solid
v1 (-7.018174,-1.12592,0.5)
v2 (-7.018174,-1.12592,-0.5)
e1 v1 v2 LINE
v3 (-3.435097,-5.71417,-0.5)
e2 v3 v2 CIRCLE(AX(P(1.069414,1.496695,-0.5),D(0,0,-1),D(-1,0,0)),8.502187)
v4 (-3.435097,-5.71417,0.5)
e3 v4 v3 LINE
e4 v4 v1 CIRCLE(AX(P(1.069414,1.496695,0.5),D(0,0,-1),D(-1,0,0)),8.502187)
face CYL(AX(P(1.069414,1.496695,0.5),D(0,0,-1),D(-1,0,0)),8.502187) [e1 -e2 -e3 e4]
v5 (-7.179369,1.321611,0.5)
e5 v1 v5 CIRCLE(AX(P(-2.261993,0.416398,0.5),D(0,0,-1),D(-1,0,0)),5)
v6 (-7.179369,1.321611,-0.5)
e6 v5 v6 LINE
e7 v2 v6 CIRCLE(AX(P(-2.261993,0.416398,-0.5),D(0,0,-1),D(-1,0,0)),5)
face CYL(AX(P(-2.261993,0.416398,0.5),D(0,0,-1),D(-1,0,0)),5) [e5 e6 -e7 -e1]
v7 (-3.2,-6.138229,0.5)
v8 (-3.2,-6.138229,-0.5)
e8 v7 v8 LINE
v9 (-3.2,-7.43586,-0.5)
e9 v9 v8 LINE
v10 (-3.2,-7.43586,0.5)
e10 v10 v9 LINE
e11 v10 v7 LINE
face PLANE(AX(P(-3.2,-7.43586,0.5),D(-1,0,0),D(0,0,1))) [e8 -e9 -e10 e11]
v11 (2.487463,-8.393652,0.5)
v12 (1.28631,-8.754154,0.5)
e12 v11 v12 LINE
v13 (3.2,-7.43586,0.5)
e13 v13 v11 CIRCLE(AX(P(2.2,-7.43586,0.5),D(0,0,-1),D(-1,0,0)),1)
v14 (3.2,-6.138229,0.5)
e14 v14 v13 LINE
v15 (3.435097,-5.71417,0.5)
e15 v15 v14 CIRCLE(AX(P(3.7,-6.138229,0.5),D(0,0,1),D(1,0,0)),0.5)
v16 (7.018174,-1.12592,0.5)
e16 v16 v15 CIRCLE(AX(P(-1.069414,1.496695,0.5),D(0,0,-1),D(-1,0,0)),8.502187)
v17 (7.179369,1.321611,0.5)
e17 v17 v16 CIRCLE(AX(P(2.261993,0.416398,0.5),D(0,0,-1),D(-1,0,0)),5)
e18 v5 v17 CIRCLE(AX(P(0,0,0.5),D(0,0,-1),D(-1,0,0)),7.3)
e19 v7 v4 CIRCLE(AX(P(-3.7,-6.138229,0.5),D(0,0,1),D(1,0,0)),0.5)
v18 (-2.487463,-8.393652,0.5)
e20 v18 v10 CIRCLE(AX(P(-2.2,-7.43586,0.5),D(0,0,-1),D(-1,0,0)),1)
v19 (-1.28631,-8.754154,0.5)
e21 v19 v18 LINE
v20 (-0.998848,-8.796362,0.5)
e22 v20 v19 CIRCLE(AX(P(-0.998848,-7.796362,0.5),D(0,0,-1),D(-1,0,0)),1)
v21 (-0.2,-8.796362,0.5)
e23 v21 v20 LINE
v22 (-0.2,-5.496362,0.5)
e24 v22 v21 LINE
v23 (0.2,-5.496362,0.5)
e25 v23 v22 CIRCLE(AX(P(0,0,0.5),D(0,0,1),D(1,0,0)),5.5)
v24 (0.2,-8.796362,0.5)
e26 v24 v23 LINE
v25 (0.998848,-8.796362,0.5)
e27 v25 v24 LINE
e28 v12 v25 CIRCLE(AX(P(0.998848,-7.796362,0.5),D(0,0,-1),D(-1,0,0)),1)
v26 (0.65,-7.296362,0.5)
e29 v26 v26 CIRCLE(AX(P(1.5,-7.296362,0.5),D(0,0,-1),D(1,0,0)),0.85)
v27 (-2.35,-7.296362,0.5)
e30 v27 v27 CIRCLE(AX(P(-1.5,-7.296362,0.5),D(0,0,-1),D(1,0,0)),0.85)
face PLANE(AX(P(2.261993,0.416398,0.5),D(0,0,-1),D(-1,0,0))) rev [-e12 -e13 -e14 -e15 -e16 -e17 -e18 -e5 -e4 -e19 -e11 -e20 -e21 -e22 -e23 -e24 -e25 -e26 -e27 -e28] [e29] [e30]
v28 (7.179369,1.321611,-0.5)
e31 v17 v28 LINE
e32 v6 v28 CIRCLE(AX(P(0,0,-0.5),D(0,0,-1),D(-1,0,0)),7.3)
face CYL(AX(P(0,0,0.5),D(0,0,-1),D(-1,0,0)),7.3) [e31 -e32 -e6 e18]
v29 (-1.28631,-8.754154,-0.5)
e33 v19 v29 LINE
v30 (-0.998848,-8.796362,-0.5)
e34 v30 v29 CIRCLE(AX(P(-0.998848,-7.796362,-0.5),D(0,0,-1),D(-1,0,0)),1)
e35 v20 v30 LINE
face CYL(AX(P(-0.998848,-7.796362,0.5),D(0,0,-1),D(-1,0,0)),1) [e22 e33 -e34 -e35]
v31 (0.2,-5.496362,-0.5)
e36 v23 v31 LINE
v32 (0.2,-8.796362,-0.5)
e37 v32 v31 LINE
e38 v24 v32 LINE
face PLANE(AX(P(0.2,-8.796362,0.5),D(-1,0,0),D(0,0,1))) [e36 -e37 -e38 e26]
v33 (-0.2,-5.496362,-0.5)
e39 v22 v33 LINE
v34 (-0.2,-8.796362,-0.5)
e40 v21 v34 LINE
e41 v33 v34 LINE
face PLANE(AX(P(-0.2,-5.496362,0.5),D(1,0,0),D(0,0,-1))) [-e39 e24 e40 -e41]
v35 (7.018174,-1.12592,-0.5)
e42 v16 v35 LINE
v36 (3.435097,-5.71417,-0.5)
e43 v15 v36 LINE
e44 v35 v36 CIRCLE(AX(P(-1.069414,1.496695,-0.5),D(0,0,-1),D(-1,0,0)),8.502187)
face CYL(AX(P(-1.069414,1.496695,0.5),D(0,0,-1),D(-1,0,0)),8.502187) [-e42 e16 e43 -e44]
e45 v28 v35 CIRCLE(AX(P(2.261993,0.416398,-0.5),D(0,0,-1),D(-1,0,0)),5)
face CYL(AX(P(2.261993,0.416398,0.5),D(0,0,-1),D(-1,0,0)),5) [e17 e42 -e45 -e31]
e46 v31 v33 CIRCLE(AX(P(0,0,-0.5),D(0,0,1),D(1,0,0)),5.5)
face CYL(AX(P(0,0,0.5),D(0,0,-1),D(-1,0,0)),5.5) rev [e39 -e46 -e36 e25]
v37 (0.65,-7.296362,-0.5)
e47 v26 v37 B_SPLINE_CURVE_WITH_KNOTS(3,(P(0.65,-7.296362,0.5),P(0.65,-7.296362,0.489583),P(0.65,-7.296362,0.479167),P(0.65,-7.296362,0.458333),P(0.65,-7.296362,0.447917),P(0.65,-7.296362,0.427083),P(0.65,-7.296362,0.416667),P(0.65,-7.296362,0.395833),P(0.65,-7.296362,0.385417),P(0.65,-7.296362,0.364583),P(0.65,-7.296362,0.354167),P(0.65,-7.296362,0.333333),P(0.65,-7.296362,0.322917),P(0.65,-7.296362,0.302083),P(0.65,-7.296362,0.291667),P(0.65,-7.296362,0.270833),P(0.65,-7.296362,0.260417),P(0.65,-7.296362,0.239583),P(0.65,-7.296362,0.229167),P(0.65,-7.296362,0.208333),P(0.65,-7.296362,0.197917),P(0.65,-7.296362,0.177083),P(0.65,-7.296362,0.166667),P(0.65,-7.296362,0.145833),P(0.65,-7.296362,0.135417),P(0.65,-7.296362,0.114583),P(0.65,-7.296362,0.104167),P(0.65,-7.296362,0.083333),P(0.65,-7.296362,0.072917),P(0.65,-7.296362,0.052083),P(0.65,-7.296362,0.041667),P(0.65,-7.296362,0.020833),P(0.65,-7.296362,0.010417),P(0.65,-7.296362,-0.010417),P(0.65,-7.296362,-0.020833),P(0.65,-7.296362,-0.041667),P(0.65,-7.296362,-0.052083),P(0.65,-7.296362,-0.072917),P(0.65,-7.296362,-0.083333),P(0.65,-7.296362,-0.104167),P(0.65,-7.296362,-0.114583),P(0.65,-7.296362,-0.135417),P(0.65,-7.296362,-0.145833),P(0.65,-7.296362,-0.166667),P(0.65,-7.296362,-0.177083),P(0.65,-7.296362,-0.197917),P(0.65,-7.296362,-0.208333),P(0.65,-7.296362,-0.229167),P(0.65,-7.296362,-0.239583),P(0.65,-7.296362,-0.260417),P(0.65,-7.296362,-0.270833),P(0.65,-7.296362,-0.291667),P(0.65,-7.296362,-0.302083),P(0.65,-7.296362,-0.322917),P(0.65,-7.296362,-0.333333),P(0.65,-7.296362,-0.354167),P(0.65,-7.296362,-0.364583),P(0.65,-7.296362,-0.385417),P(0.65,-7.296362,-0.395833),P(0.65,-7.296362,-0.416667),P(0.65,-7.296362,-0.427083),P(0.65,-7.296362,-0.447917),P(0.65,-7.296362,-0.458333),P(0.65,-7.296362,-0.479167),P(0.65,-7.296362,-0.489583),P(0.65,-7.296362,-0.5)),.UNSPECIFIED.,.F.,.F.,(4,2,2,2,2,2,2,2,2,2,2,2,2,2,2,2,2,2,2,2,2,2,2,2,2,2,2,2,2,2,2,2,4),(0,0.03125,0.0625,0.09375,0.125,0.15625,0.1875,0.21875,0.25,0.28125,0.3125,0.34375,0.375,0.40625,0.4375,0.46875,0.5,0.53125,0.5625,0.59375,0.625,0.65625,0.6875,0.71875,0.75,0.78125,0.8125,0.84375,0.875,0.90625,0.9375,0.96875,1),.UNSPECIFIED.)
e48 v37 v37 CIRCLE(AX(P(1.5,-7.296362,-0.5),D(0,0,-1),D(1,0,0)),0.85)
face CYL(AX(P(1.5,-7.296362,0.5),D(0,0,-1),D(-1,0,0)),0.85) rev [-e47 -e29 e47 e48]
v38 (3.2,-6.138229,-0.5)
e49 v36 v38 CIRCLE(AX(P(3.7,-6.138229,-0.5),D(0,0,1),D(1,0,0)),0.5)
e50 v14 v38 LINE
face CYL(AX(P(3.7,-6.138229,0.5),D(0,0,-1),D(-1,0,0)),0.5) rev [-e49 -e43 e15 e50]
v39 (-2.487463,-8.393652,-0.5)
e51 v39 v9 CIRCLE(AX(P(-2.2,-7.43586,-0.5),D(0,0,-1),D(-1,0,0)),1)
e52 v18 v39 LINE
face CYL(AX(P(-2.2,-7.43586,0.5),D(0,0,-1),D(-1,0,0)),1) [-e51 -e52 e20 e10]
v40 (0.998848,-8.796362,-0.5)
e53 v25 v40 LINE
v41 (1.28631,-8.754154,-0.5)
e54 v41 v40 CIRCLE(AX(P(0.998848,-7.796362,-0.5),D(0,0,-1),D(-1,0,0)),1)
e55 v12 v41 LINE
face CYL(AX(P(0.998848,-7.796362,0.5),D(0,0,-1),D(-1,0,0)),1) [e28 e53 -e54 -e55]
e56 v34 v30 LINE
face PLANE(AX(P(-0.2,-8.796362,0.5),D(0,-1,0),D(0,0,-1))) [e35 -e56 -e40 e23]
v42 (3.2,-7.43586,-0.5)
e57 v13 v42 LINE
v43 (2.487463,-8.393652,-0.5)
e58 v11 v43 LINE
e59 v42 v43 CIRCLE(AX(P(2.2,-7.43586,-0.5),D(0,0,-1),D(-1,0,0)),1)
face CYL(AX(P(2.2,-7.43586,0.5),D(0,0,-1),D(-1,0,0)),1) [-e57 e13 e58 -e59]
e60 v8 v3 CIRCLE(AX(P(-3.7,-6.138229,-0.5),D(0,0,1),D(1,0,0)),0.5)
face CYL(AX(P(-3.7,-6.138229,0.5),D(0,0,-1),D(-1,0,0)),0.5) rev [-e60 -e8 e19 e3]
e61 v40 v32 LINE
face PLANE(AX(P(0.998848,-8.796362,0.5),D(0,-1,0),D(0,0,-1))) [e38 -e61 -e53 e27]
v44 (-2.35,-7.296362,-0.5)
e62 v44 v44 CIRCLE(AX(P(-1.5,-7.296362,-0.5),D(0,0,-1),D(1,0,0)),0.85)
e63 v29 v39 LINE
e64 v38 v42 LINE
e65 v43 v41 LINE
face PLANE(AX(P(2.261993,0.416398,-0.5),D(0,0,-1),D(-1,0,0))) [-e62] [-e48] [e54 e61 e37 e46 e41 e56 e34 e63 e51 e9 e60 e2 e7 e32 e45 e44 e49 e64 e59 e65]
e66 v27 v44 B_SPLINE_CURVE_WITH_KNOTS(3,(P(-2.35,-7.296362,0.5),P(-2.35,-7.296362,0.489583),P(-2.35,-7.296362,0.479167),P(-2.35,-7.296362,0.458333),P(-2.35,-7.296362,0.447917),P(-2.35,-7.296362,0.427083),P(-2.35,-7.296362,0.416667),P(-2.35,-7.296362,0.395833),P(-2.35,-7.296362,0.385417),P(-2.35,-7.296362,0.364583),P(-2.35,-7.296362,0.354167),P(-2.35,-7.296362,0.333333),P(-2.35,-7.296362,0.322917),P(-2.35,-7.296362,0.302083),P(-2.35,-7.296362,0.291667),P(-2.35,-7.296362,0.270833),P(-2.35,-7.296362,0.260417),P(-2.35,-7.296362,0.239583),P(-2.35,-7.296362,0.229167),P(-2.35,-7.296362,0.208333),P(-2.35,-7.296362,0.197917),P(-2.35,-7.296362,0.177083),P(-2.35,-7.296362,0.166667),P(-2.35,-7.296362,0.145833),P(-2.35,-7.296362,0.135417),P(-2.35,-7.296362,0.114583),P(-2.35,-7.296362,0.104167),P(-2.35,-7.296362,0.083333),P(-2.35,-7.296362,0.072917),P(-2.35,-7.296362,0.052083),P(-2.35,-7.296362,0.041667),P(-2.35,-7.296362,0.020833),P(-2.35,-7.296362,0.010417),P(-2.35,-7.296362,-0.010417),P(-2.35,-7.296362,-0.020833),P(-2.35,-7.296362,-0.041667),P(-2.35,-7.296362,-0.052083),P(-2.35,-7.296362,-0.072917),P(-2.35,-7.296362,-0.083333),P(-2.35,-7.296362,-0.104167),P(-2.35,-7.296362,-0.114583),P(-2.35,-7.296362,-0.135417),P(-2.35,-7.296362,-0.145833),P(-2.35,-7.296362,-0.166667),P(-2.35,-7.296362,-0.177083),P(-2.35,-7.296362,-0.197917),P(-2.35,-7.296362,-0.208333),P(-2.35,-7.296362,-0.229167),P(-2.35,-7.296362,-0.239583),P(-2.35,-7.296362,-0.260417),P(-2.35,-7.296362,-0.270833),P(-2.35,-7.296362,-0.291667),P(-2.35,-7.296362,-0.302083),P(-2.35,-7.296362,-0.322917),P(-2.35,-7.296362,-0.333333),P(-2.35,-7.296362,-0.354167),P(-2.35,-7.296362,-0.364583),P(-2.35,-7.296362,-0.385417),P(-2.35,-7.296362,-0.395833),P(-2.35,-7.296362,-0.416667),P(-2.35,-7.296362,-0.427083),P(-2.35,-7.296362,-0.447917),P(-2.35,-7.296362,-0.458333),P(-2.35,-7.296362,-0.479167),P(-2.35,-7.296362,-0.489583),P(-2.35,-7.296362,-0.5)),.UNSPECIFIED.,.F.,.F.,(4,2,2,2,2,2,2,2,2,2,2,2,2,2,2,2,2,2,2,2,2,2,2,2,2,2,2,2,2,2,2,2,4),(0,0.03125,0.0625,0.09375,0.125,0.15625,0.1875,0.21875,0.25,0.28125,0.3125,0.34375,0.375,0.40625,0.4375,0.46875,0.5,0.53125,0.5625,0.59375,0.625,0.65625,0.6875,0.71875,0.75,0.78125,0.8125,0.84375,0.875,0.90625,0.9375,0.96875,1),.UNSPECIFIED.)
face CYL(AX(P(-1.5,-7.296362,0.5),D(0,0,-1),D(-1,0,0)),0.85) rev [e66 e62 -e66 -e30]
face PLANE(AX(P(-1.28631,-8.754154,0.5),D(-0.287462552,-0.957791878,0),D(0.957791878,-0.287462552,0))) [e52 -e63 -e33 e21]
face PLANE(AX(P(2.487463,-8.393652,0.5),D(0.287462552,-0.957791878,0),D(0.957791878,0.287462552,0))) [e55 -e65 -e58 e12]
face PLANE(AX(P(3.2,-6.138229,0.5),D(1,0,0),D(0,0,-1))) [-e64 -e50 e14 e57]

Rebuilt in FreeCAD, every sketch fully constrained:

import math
import FreeCAD as App
import Part
import Sketcher
from FreeCAD import Vector

doc = App.newDocument("Part")
params = doc.addObject("Spreadsheet::Sheet", "Params")
for row, (alias, value) in enumerate([
    ("sketch1_radius", "1 mm"),
    ("sketch1_radius2", "1 mm"),
    ("sketch1_radius3", "1 mm"),
    ("sketch1_radius4", "1 mm"),
    ("sketch1_radius5", "5 mm"),
    ("pad1_length", "1 mm"),
], start=1):
    params.set(f"A{row}", alias)
    params.set(f"B{row}", "=" + value)
    params.setAlias(f"B{row}", alias)

body = doc.addObject("PartDesign::Body", "Body")

# Sketch on XY plane
sketch1 = body.newObject("Sketcher::SketchObject", "Sketch")
sketch1.AttachmentSupport = (doc.getObject("XY_Plane"), [""])
sketch1.MapMode = "FlatFace"
sketch1.AttachmentOffset = App.Placement(Vector(0, 0, -0.5), App.Rotation())
sketch1.addGeometry([
    Part.LineSegment(Vector(3.2, -6.138229, 0), Vector(3.2, -7.43586, 0)),  # 0
    Part.ArcOfCircle(Part.Circle(Vector(2.2, -7.43586, 0), Vector(0, 0, 1), 1), math.radians(-73.293896), math.radians(0)),  # 1
    Part.LineSegment(Vector(2.487463, -8.393652, 0), Vector(1.28631, -8.754154, 0)),  # 2
    Part.ArcOfCircle(Part.Circle(Vector(0.998848, -7.796362, 0), Vector(0, 0, 1), 1), math.radians(-90), math.radians(-73.293896)),  # 3
    Part.LineSegment(Vector(0.998848, -8.796362, 0), Vector(0.2, -8.796362, 0)),  # 4
    Part.LineSegment(Vector(0.2, -8.796362, 0), Vector(0.2, -5.496362, 0)),  # 5
    Part.ArcOfCircle(Part.Circle(Vector(0, 0, 0), Vector(0, 0, 1), 5.5), math.radians(-87.916058), math.radians(267.916058)),  # 6
    Part.LineSegment(Vector(-0.2, -5.496362, 0), Vector(-0.2, -8.796362, 0)),  # 7
    Part.LineSegment(Vector(-0.2, -8.796362, 0), Vector(-0.998848, -8.796362, 0)),  # 8
    Part.ArcOfCircle(Part.Circle(Vector(-0.998848, -7.796362, 0), Vector(0, 0, 1), 1), math.radians(-106.706104), math.radians(-90)),  # 9
    Part.LineSegment(Vector(-1.28631, -8.754154, 0), Vector(-2.487463, -8.393652, 0)),  # 10
    Part.ArcOfCircle(Part.Circle(Vector(-2.2, -7.43586, 0), Vector(0, 0, 1), 1), math.radians(180), math.radians(253.293896)),  # 11
    Part.LineSegment(Vector(-3.2, -7.43586, 0), Vector(-3.2, -6.138229, 0)),  # 12
    Part.ArcOfCircle(Part.Circle(Vector(-3.7, -6.138229, 0), Vector(0, 0, 1), 0.5), math.radians(0), math.radians(58.007643)),  # 13
    Part.ArcOfCircle(Part.Circle(Vector(1.069414, 1.496695, 0), Vector(0, 0, 1), 8.502187), math.radians(-162.033343), math.radians(-121.992357)),  # 14
    Part.ArcOfCircle(Part.Circle(Vector(-2.261993, 0.416398, 0), Vector(0, 0, 1), 5), math.radians(169.569509), math.radians(197.966657)),  # 15
    Part.ArcOfCircle(Part.Circle(Vector(0, 0, 0), Vector(0, 0, 1), 7.3), math.radians(10.430491), math.radians(169.569509)),  # 16
    Part.ArcOfCircle(Part.Circle(Vector(2.261993, 0.416398, 0), Vector(0, 0, 1), 5), math.radians(-17.966657), math.radians(10.430491)),  # 17
    Part.ArcOfCircle(Part.Circle(Vector(-1.069414, 1.496695, 0), Vector(0, 0, 1), 8.502187), math.radians(-58.007643), math.radians(-17.966657)),  # 18
    Part.ArcOfCircle(Part.Circle(Vector(3.7, -6.138229, 0), Vector(0, 0, 1), 0.5), math.radians(121.992357), math.radians(180)),  # 19
    Part.Circle(Vector(1.5, -7.296362, 0), Vector(0, 0, 1), 0.85),  # 20
    Part.Circle(Vector(-1.5, -7.296362, 0), Vector(0, 0, 1), 0.85),  # 21
], False)
sketch1.addConstraint([
    Sketcher.Constraint("Coincident", 0, 2, 1, 2),
    Sketcher.Constraint("Coincident", 1, 1, 2, 1),
    Sketcher.Constraint("Coincident", 2, 2, 3, 2),
    Sketcher.Constraint("Coincident", 3, 1, 4, 1),
    Sketcher.Constraint("Coincident", 4, 2, 5, 1),
    Sketcher.Constraint("Coincident", 5, 2, 6, 1),
    Sketcher.Constraint("Coincident", 6, 2, 7, 1),
    Sketcher.Constraint("Coincident", 7, 2, 8, 1),
    Sketcher.Constraint("Coincident", 8, 2, 9, 2),
    Sketcher.Constraint("Coincident", 9, 1, 10, 1),
    Sketcher.Constraint("Coincident", 10, 2, 11, 2),
    Sketcher.Constraint("Coincident", 11, 1, 12, 1),
    Sketcher.Constraint("Coincident", 12, 2, 13, 1),
    Sketcher.Constraint("Coincident", 13, 2, 14, 2),
    Sketcher.Constraint("Coincident", 14, 1, 15, 2),
    Sketcher.Constraint("Coincident", 15, 1, 16, 2),
    Sketcher.Constraint("Coincident", 16, 1, 17, 2),
    Sketcher.Constraint("Coincident", 17, 1, 18, 2),
    Sketcher.Constraint("Coincident", 18, 1, 19, 1),
    Sketcher.Constraint("Coincident", 19, 2, 0, 1),
    Sketcher.Constraint("Vertical", 0),
    Sketcher.Constraint("Horizontal", 4),
    Sketcher.Constraint("Vertical", 5),
    Sketcher.Constraint("Vertical", 7),
    Sketcher.Constraint("Horizontal", 8),
    Sketcher.Constraint("Vertical", 12),
    Sketcher.Constraint("Coincident", 6, 3, -1, 1),
    Sketcher.Constraint("Coincident", 16, 3, -1, 1),
    Sketcher.Constraint("Radius", 1, 1.0),
    Sketcher.Constraint("Radius", 3, 1.0),
    Sketcher.Constraint("Radius", 9, 1.0),
    Sketcher.Constraint("Radius", 11, 1.0),
    Sketcher.Constraint("Radius", 15, 5.0),
    Sketcher.Constraint("Radius", 17, 5.0),
    Sketcher.Constraint("Diameter", 20, 1.7),
    Sketcher.Constraint("Diameter", 21, 1.7),
    Sketcher.Constraint("Radius", 6, 5.5),
    Sketcher.Constraint("Radius", 13, 0.5),
    Sketcher.Constraint("Radius", 16, 7.3),
    Sketcher.Constraint("Radius", 19, 0.5),
    Sketcher.Constraint("DistanceY", 5, 1, 5, 2, 3.3),
    Sketcher.Constraint("DistanceY", 7, 2, 7, 1, 3.3),
    Sketcher.Constraint("DistanceX", 21, 3, 20, 3, 3.0),
    Sketcher.Constraint("DistanceY", 4, 2, 9, 3, 1.0),
    Sketcher.Constraint("DistanceX", 5, 2, 1, 3, 2.0),
    Sketcher.Constraint("DistanceX", -1, 1, 1, 3, 2.2),
    Sketcher.Constraint("DistanceX", 11, 3, -1, 1, 2.2),
    Sketcher.Constraint("DistanceX", -1, 1, 20, 3, 1.5),
    Sketcher.Constraint("DistanceY", 3, 3, 20, 3, 0.5),
    Sketcher.Constraint("DistanceY", 9, 3, 21, 3, 0.5),
    Sketcher.Constraint("Radius", 14, 8.502187),
    Sketcher.Constraint("Radius", 18, 8.502187),
    Sketcher.Constraint("DistanceY", 0, 2, 0, 1, 1.297631),
    Sketcher.Constraint("DistanceY", 12, 1, 12, 2, 1.297631),
    Sketcher.Constraint("DistanceX", 4, 2, 4, 1, 0.798848),
    Sketcher.Constraint("DistanceX", 8, 2, 8, 1, 0.798848),
    Sketcher.Constraint("DistanceY", 1, 3, -1, 1, 7.43586),
    Sketcher.Constraint("DistanceY", 11, 3, -1, 1, 7.43586),
    Sketcher.Constraint("DistanceY", 13, 3, -1, 1, 6.138229),
    Sketcher.Constraint("DistanceY", 19, 3, -1, 1, 6.138229),
    Sketcher.Constraint("DistanceY", 0, 2, -1, 1, 7.43586),
    Sketcher.Constraint("DistanceY", 1, 1, -1, 1, 8.393652),
    Sketcher.Constraint("DistanceX", -1, 1, 2, 2, 1.28631),
    Sketcher.Constraint("DistanceX", 9, 1, -1, 1, 1.28631),
    Sketcher.Constraint("DistanceY", 10, 2, -1, 1, 8.393652),
    Sketcher.Constraint("DistanceY", 11, 1, -1, 1, 7.43586),
    Sketcher.Constraint("DistanceY", 13, 2, -1, 1, 5.71417),
    Sketcher.Constraint("DistanceY", 14, 1, -1, 1, 1.12592),
    Sketcher.Constraint("DistanceX", 15, 1, -1, 1, 7.179369),
    Sketcher.Constraint("DistanceX", -1, 1, 16, 1, 7.179369),
    Sketcher.Constraint("DistanceY", 17, 1, -1, 1, 1.12592),
    Sketcher.Constraint("DistanceY", 18, 1, -1, 1, 5.71417),
    Sketcher.Constraint("DistanceY", 9, 3, 15, 3, 8.21276),
    Sketcher.Constraint("DistanceX", 14, 3, 17, 3, 1.192579),
    Sketcher.Constraint("DistanceY", 2, 2, 3, 3, 0.957792),
    Sketcher.Constraint("DistanceY", 8, 2, 9, 1, 0.042208),
])
sketch1.setExpression("Constraints[28]", "Params.sketch1_radius")
sketch1.setExpression("Constraints[29]", "Params.sketch1_radius2")
sketch1.setExpression("Constraints[30]", "Params.sketch1_radius3")
sketch1.setExpression("Constraints[31]", "Params.sketch1_radius4")
sketch1.setExpression("Constraints[32]", "Params.sketch1_radius5")
pad1 = body.newObject("PartDesign::Pad", "Pad")
pad1.Profile = sketch1
pad1.setExpression("Length", "Params.pad1_length")

doc.recompute()
